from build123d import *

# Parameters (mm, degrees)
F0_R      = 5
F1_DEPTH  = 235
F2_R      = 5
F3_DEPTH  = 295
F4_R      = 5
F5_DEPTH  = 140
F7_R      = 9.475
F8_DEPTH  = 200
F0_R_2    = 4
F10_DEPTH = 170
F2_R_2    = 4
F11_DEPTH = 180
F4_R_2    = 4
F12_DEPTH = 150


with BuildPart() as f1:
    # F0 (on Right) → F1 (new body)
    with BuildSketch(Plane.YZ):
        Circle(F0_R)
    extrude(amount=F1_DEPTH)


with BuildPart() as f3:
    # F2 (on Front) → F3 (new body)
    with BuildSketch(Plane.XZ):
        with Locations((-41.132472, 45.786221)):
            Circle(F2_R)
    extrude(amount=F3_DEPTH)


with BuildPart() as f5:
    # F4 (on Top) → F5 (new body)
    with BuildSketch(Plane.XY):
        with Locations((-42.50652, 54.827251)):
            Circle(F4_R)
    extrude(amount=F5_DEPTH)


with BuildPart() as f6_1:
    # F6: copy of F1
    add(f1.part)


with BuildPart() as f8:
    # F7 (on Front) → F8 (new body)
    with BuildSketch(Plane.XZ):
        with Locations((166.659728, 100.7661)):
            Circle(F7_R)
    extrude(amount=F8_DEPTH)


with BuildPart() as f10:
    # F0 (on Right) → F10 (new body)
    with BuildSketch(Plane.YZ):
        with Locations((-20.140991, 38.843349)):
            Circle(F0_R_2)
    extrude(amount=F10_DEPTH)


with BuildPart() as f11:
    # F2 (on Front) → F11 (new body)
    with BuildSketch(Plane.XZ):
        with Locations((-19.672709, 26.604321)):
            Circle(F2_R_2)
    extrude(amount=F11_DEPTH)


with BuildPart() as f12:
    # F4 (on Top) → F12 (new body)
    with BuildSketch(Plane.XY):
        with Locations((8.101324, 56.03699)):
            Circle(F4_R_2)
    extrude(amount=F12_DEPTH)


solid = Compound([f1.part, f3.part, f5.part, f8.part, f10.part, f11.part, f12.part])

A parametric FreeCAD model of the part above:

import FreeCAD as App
import Part
import Sketcher

doc = App.newDocument("Part")
params = doc.addObject("Spreadsheet::Sheet", "Params")
for row, (alias, value) in enumerate([
    ("sketch1_diameter", "10 mm"),
    ("pad1_length", "235 mm"),
    ("sketch2_diameter", "10 mm"),
    ("pad2_length", "295 mm"),
    ("sketch3_diameter", "10 mm"),
    ("pad3_length", "140 mm"),
    ("sketch4_diameter", "18.95 mm"),
    ("pad4_length", "200 mm"),
    ("sketch5_diameter", "8 mm"),
    ("pad5_length", "170 mm"),
    ("sketch6_diameter", "8 mm"),
    ("pad6_length", "180 mm"),
    ("sketch7_diameter", "8 mm"),
    ("pad7_length", "150 mm"),
], start=1):
    params.set(f"A{row}", alias)
    params.set(f"B{row}", "=" + value)
    params.setAlias(f"B{row}", alias)

body = doc.addObject("PartDesign::Body", "Body")

sketch1 = doc.addObject("Sketcher::SketchObject", "Sketch")
body.addObject(sketch1)
sketch1.AttachmentSupport = (doc.YZ_Plane, [""])
sketch1.MapMode = "FlatFace"
sketch1.addGeometry(Part.Circle(App.Vector(0, 0, 0), App.Vector(0, 0, 1), 5), False)
sketch1.addConstraint([
    Sketcher.Constraint("Coincident", 0, 3, -1, 1),
    Sketcher.Constraint("Diameter", 0, 10.0),
])
sketch1.setExpression("Constraints[1]", "Params.sketch1_diameter")
pad1 = doc.addObject("PartDesign::Pad", "Pad")
body.addObject(pad1)
pad1.Profile = sketch1
pad1.setExpression("Length", "Params.pad1_length")
body2 = doc.addObject("PartDesign::Body", "Body001")

sketch2 = doc.addObject("Sketcher::SketchObject", "Sketch001")
body2.addObject(sketch2)
sketch2.AttachmentSupport = (doc.getObject("XZ_Plane001"), [""])
sketch2.MapMode = "FlatFace"
sketch2.addGeometry(Part.Circle(App.Vector(-41.132472, 45.786221, 0), App.Vector(0, 0, 1), 5), False)
sketch2.addConstraint([
    Sketcher.Constraint("Diameter", 0, 10.0),
    Sketcher.Constraint("DistanceY", -1, 1, 0, 3, 45.786221),
    Sketcher.Constraint("DistanceX", 0, 3, -1, 1, 41.132472),
])
sketch2.setExpression("Constraints[0]", "Params.sketch2_diameter")
pad2 = doc.addObject("PartDesign::Pad", "Pad001")
body2.addObject(pad2)
pad2.Profile = sketch2
pad2.setExpression("Length", "Params.pad2_length")
body3 = doc.addObject("PartDesign::Body", "Body002")

sketch3 = doc.addObject("Sketcher::SketchObject", "Sketch002")
body3.addObject(sketch3)
sketch3.AttachmentSupport = (doc.getObject("XY_Plane002"), [""])
sketch3.MapMode = "FlatFace"
sketch3.addGeometry(Part.Circle(App.Vector(-42.50652, 54.827251, 0), App.Vector(0, 0, 1), 5), False)
sketch3.addConstraint([
    Sketcher.Constraint("Diameter", 0, 10.0),
    Sketcher.Constraint("DistanceX", 0, 3, -1, 1, 42.50652),
    Sketcher.Constraint("DistanceY", -1, 1, 0, 3, 54.827251),
])
sketch3.setExpression("Constraints[0]", "Params.sketch3_diameter")
pad3 = doc.addObject("PartDesign::Pad", "Pad002")
body3.addObject(pad3)
pad3.Profile = sketch3
pad3.setExpression("Length", "Params.pad3_length")
body4 = doc.addObject("PartDesign::Body", "Body003")
doc.recompute()

body4.BaseFeature = body
doc.recompute()
body5 = doc.addObject("PartDesign::Body", "Body004")

sketch4 = doc.addObject("Sketcher::SketchObject", "Sketch003")
body5.addObject(sketch4)
sketch4.AttachmentSupport = (doc.getObject("XZ_Plane004"), [""])
sketch4.MapMode = "FlatFace"
sketch4.addGeometry(Part.Circle(App.Vector(166.659728, 100.7661, 0), App.Vector(0, 0, 1), 9.475), False)
sketch4.addConstraint([
    Sketcher.Constraint("Diameter", 0, 18.95),
    Sketcher.Constraint("DistanceY", -1, 1, 0, 3, 100.7661),
    Sketcher.Constraint("DistanceX", -1, 1, 0, 3, 166.659728),
])
sketch4.setExpression("Constraints[0]", "Params.sketch4_diameter")
pad4 = doc.addObject("PartDesign::Pad", "Pad003")
body5.addObject(pad4)
pad4.Profile = sketch4
pad4.setExpression("Length", "Params.pad4_length")
body6 = doc.addObject("PartDesign::Body", "Body005")

sketch5 = doc.addObject("Sketcher::SketchObject", "Sketch004")
body6.addObject(sketch5)
sketch5.AttachmentSupport = (doc.getObject("YZ_Plane005"), [""])
sketch5.MapMode = "FlatFace"
sketch5.addGeometry(Part.Circle(App.Vector(-20.140991, 38.843349, 0), App.Vector(0, 0, 1), 4), False)
sketch5.addConstraint([
    Sketcher.Constraint("Diameter", 0, 8.0),
    Sketcher.Constraint("DistanceX", 0, 3, -1, 1, 20.140991),
    Sketcher.Constraint("DistanceY", -1, 1, 0, 3, 38.843349),
])
sketch5.setExpression("Constraints[0]", "Params.sketch5_diameter")
pad5 = doc.addObject("PartDesign::Pad", "Pad004")
body6.addObject(pad5)
pad5.Profile = sketch5
pad5.setExpression("Length", "Params.pad5_length")
body7 = doc.addObject("PartDesign::Body", "Body006")

sketch6 = doc.addObject("Sketcher::SketchObject", "Sketch005")
body7.addObject(sketch6)
sketch6.AttachmentSupport = (doc.getObject("XZ_Plane006"), [""])
sketch6.MapMode = "FlatFace"
sketch6.addGeometry(Part.Circle(App.Vector(-19.672709, 26.604321, 0), App.Vector(0, 0, 1), 4), False)
sketch6.addConstraint([
    Sketcher.Constraint("Diameter", 0, 8.0),
    Sketcher.Constraint("DistanceX", 0, 3, -1, 1, 19.672709),
    Sketcher.Constraint("DistanceY", -1, 1, 0, 3, 26.604321),
])
sketch6.setExpression("Constraints[0]", "Params.sketch6_diameter")
pad6 = doc.addObject("PartDesign::Pad", "Pad005")
body7.addObject(pad6)
pad6.Profile = sketch6
pad6.setExpression("Length", "Params.pad6_length")
body8 = doc.addObject("PartDesign::Body", "Body007")

sketch7 = doc.addObject("Sketcher::SketchObject", "Sketch006")
body8.addObject(sketch7)
sketch7.AttachmentSupport = (doc.getObject("XY_Plane007"), [""])
sketch7.MapMode = "FlatFace"
sketch7.addGeometry(Part.Circle(App.Vector(8.101324, 56.03699, 0), App.Vector(0, 0, 1), 4), False)
sketch7.addConstraint([
    Sketcher.Constraint("Diameter", 0, 8.0),
    Sketcher.Constraint("DistanceY", -1, 1, 0, 3, 56.03699),
    Sketcher.Constraint("DistanceX", -1, 1, 0, 3, 8.101324),
])
sketch7.setExpression("Constraints[0]", "Params.sketch7_diameter")
pad7 = doc.addObject("PartDesign::Pad", "Pad006")
body8.addObject(pad7)
pad7.Profile = sketch7
pad7.setExpression("Length", "Params.pad7_length")
body.Visibility = False

doc.recompute()
